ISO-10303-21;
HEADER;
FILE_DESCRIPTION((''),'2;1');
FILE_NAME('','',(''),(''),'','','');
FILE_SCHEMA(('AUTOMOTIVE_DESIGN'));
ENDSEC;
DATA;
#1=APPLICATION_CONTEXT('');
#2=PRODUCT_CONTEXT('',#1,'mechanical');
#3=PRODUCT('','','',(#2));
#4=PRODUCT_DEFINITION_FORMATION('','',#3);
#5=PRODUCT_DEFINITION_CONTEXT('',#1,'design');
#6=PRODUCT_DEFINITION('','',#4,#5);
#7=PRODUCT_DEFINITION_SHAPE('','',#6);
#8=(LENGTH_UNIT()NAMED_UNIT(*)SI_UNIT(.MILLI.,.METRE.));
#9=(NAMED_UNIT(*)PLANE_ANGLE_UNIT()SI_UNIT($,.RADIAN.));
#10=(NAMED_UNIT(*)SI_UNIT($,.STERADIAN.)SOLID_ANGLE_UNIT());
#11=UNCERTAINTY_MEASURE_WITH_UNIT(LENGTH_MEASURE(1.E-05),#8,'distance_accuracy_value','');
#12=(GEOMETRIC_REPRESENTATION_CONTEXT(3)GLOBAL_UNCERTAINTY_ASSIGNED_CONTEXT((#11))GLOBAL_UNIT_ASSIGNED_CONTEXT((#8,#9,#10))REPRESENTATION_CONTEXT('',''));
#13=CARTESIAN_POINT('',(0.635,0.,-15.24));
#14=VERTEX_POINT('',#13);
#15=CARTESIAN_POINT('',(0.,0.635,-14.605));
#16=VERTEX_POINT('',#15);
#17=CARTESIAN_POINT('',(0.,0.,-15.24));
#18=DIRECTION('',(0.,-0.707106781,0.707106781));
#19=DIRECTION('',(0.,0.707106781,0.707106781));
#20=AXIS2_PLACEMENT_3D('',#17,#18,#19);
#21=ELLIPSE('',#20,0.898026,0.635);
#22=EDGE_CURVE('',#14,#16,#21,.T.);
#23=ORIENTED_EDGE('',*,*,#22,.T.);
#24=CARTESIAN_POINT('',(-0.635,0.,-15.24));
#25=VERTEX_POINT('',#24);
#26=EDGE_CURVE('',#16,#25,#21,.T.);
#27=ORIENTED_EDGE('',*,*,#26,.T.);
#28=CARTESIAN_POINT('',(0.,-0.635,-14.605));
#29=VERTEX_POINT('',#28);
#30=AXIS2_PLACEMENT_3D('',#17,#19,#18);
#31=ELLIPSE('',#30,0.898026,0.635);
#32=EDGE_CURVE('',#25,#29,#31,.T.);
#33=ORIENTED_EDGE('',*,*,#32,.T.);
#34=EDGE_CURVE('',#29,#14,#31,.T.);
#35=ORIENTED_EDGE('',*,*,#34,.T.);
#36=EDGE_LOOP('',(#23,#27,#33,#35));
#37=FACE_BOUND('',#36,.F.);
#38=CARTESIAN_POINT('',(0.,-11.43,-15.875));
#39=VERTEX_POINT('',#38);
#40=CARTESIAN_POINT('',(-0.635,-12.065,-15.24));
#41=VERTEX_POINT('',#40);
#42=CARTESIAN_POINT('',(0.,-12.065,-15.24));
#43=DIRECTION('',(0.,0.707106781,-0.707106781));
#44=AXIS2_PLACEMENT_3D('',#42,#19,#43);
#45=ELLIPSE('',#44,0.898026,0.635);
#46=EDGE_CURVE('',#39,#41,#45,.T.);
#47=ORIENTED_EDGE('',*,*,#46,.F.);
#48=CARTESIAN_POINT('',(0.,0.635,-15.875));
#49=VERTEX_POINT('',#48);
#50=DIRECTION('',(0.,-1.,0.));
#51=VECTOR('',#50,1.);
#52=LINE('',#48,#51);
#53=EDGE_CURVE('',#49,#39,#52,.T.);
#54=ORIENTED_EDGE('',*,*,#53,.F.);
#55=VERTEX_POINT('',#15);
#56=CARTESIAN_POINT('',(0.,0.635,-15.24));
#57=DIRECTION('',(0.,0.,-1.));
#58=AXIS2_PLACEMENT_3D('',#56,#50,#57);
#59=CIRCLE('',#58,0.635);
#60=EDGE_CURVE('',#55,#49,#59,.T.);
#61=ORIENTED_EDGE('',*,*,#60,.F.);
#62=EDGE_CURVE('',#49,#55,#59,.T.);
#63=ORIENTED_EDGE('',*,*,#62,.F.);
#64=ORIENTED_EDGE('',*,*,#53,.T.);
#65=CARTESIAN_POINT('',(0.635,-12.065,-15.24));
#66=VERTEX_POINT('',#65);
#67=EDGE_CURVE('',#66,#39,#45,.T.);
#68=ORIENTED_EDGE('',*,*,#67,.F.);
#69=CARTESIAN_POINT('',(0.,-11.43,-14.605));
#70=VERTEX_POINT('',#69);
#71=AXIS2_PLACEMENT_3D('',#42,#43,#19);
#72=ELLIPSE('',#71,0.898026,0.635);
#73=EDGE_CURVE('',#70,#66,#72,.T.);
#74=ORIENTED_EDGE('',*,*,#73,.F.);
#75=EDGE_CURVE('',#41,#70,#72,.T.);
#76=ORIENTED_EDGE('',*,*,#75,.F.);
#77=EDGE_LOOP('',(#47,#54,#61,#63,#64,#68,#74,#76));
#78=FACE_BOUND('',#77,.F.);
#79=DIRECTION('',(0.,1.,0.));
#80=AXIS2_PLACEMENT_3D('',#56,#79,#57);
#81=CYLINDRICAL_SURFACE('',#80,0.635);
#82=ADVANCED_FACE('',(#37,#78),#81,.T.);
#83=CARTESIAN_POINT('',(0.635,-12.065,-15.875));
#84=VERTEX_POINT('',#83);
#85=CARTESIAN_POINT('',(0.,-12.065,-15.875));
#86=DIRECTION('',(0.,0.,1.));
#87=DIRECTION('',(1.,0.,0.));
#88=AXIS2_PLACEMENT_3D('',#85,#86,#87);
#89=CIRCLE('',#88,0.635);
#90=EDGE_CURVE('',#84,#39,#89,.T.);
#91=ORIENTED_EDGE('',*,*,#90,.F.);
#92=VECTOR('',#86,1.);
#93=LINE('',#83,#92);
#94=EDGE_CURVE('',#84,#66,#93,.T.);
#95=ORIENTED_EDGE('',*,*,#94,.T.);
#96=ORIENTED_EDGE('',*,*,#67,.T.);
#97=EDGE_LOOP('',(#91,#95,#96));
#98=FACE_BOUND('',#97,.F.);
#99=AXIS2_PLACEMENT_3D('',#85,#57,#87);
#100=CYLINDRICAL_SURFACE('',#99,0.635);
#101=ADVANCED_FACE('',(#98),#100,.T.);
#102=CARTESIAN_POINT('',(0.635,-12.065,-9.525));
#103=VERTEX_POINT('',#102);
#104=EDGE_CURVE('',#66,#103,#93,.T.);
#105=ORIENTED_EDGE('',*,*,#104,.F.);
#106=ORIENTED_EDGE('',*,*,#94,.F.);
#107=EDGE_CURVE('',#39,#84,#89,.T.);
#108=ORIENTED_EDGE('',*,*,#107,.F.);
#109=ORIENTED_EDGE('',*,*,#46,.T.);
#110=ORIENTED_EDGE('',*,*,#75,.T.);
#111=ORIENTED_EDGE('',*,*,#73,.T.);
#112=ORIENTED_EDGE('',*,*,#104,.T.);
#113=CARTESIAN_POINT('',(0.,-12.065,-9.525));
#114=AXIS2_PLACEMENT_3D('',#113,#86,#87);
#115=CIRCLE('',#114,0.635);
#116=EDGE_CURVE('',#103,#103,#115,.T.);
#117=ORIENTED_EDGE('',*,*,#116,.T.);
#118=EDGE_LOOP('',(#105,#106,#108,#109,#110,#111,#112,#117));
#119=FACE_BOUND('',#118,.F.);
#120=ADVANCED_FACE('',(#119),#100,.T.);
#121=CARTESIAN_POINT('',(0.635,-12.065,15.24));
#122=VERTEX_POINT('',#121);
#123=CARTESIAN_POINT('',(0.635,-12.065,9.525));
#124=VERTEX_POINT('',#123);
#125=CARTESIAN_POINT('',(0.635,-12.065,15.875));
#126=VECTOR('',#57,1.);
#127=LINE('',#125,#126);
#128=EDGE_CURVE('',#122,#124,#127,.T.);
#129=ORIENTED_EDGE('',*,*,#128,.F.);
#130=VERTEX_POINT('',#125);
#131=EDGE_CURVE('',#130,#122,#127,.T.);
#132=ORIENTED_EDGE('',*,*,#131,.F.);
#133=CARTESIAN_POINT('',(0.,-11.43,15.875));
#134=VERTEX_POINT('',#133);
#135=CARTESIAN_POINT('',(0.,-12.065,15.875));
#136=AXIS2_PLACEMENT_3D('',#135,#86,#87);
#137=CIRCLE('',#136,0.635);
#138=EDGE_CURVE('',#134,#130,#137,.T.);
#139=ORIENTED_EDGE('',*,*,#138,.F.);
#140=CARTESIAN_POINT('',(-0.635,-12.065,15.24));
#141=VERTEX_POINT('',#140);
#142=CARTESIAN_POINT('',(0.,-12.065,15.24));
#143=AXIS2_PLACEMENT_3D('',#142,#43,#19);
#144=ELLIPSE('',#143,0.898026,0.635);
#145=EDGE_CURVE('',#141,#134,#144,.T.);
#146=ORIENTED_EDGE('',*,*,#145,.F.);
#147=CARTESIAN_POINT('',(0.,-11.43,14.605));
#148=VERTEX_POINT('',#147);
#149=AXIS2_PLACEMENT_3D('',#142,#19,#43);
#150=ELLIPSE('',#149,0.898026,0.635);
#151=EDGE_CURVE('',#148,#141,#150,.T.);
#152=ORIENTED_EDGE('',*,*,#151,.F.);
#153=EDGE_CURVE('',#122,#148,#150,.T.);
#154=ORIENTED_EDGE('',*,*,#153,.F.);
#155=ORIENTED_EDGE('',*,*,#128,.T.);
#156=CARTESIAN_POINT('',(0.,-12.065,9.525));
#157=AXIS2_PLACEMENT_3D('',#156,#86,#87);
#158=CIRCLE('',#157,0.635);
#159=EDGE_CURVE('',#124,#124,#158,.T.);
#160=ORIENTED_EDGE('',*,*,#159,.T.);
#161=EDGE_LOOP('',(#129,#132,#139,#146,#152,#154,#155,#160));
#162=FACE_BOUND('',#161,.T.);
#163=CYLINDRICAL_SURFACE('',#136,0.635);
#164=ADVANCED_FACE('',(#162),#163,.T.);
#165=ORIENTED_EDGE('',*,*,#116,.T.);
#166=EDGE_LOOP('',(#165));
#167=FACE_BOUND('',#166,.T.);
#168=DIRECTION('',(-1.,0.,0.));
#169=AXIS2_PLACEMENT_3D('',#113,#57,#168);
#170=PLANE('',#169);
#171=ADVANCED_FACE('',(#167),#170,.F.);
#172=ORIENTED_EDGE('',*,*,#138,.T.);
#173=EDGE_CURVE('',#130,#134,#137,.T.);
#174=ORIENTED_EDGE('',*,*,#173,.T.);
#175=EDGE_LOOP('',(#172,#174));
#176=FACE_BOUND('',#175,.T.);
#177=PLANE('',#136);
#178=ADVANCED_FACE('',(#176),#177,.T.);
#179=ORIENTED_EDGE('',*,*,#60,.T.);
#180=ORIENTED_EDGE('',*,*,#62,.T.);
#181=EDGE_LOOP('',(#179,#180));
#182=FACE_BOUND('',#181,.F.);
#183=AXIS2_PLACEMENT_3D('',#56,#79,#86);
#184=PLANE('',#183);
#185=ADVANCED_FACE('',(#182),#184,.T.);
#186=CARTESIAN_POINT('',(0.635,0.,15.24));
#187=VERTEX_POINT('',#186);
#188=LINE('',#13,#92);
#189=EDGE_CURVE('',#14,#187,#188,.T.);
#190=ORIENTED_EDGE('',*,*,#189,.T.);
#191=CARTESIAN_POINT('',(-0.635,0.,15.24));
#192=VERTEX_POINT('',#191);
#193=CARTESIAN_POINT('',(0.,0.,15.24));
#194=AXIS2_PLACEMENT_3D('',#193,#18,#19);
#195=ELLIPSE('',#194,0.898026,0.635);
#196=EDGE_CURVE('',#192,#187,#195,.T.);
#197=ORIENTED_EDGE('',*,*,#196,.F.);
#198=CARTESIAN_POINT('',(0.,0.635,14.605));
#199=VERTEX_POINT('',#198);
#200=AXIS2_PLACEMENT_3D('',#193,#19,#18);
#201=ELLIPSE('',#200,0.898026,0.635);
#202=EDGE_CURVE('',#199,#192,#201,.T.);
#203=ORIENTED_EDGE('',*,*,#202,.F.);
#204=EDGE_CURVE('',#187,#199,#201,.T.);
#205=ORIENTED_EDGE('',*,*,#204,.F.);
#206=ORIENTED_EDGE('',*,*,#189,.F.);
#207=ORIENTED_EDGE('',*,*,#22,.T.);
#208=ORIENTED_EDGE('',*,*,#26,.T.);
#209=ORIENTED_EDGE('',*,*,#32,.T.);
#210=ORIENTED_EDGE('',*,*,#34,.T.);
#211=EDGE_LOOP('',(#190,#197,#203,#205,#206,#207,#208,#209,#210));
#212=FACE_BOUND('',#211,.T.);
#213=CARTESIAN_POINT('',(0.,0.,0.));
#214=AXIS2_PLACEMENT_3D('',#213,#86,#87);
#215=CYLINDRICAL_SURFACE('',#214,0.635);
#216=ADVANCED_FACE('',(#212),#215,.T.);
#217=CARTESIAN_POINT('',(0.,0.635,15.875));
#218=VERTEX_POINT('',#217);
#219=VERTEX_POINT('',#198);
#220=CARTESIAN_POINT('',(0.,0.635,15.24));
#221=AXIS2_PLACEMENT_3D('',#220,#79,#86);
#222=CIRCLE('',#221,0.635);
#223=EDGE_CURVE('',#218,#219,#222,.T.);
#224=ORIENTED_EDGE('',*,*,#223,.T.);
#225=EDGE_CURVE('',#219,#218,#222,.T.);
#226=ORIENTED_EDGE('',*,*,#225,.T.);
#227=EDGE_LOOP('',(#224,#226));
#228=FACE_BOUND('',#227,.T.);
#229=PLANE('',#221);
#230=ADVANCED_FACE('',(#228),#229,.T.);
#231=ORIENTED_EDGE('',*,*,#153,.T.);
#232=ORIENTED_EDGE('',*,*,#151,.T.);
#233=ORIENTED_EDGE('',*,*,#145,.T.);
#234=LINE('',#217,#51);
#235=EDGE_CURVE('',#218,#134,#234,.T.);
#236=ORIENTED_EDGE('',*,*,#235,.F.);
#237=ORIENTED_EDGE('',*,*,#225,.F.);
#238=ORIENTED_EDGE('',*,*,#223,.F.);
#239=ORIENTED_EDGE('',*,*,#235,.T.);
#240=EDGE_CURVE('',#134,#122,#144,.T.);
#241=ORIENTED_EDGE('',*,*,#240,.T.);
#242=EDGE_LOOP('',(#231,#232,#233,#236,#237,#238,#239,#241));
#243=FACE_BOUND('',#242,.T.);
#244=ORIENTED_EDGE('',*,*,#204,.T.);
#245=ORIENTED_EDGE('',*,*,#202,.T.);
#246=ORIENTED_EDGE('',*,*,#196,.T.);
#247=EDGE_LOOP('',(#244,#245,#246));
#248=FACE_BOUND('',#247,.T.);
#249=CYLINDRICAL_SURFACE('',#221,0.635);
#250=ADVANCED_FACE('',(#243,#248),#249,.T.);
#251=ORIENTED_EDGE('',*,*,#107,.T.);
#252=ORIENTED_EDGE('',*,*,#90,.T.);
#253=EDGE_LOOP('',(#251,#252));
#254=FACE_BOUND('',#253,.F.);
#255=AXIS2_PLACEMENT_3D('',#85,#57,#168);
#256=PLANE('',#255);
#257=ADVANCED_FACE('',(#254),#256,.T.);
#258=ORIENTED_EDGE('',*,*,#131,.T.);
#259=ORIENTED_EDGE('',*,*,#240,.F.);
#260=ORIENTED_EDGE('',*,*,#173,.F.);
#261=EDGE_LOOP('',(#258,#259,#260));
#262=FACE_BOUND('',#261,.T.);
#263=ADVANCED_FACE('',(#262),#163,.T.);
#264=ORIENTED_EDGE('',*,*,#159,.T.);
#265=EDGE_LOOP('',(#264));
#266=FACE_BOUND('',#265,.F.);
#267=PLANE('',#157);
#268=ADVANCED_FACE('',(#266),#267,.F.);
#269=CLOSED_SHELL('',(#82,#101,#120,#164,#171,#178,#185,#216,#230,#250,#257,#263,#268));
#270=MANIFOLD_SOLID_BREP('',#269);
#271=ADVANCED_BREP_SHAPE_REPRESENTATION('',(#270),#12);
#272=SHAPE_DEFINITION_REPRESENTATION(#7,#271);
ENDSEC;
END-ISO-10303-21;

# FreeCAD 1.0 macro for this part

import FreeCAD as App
import Part
import Sketcher

V = App.Vector
Q = App.Units.Quantity

doc = App.newDocument("Part")
body = doc.addObject("PartDesign::Body", "Body")

# Sketch on XY plane
sketch1 = body.newObject("Sketcher::SketchObject", "Sketch")
sketch1.AttachmentSupport = (doc.getObject("XY_Plane"), [""])
sketch1.MapMode = "FlatFace"
sketch1.addGeometry(Part.Circle(V(0, 0, 0), V(0, 0, 1), 0.6), False)
sketch1.addConstraint(Sketcher.Constraint("Coincident", 0, 3, -1, 1))
sketch1.addConstraint(Sketcher.Constraint("Diameter", 0, Q("0.05 in")))
pad1 = body.newObject("PartDesign::Pad", "Pad")
pad1.Profile = sketch1
pad1.Length = Q("1.2 in")
pad1.Midplane = True

# Sketch on XZ plane
sketch2 = body.newObject("Sketcher::SketchObject", "Sketch001")
sketch2.AttachmentSupport = (doc.getObject("XZ_Plane"), [""])
sketch2.MapMode = "FlatFace"
sketch2.AttachmentOffset = App.Placement(V(0, 0, -0.025 * 25.4), App.Rotation())
sketch2.addGeometry(Part.Circle(V(0, 15.2, 0), V(0, 0, 1), 0.6), False)
sketch2.addConstraint(Sketcher.Constraint("PointOnObject", 0, 3, -2))
sketch2.addConstraint(Sketcher.Constraint("Diameter", 0, Q("0.05 in")))
sketch2.addConstraint(Sketcher.Constraint("DistanceY", -1, 1, 0, 3, Q("0.6 in")))
pad2 = body.newObject("PartDesign::Pad", "Pad001")
pad2.Profile = sketch2
pad2.Length = Q("0.5 in")

# Sketch on XY plane
sketch3 = body.newObject("Sketcher::SketchObject", "Sketch002")
sketch3.AttachmentSupport = (doc.getObject("XY_Plane"), [""])
sketch3.MapMode = "FlatFace"
sketch3.AttachmentOffset = App.Placement(V(0, 0, 0.625 * 25.4), App.Rotation())
sketch3.addGeometry(Part.Circle(V(0, -12.1, 0), V(0, 0, 1), 0.6), False)
sketch3.addConstraint(Sketcher.Constraint("PointOnObject", 0, 3, -2))
sketch3.addConstraint(Sketcher.Constraint("Diameter", 0, Q("0.05 in")))
sketch3.addConstraint(Sketcher.Constraint("DistanceY", 0, 3, -1, 1, Q("0.475 in")))
pad3 = body.newObject("PartDesign::Pad", "Pad002")
pad3.Profile = sketch3
pad3.Length = Q("0.25 in")
pad3.Reversed = True
doc.recompute()

mirrored = body.newObject("PartDesign::Mirrored", "Mirrored")
mirrored.Originals = [pad2, pad3]
mirrored.MirrorPlane = (doc.getObject("XY_Plane"), [""])
body.Tip = mirrored

doc.recompute()
